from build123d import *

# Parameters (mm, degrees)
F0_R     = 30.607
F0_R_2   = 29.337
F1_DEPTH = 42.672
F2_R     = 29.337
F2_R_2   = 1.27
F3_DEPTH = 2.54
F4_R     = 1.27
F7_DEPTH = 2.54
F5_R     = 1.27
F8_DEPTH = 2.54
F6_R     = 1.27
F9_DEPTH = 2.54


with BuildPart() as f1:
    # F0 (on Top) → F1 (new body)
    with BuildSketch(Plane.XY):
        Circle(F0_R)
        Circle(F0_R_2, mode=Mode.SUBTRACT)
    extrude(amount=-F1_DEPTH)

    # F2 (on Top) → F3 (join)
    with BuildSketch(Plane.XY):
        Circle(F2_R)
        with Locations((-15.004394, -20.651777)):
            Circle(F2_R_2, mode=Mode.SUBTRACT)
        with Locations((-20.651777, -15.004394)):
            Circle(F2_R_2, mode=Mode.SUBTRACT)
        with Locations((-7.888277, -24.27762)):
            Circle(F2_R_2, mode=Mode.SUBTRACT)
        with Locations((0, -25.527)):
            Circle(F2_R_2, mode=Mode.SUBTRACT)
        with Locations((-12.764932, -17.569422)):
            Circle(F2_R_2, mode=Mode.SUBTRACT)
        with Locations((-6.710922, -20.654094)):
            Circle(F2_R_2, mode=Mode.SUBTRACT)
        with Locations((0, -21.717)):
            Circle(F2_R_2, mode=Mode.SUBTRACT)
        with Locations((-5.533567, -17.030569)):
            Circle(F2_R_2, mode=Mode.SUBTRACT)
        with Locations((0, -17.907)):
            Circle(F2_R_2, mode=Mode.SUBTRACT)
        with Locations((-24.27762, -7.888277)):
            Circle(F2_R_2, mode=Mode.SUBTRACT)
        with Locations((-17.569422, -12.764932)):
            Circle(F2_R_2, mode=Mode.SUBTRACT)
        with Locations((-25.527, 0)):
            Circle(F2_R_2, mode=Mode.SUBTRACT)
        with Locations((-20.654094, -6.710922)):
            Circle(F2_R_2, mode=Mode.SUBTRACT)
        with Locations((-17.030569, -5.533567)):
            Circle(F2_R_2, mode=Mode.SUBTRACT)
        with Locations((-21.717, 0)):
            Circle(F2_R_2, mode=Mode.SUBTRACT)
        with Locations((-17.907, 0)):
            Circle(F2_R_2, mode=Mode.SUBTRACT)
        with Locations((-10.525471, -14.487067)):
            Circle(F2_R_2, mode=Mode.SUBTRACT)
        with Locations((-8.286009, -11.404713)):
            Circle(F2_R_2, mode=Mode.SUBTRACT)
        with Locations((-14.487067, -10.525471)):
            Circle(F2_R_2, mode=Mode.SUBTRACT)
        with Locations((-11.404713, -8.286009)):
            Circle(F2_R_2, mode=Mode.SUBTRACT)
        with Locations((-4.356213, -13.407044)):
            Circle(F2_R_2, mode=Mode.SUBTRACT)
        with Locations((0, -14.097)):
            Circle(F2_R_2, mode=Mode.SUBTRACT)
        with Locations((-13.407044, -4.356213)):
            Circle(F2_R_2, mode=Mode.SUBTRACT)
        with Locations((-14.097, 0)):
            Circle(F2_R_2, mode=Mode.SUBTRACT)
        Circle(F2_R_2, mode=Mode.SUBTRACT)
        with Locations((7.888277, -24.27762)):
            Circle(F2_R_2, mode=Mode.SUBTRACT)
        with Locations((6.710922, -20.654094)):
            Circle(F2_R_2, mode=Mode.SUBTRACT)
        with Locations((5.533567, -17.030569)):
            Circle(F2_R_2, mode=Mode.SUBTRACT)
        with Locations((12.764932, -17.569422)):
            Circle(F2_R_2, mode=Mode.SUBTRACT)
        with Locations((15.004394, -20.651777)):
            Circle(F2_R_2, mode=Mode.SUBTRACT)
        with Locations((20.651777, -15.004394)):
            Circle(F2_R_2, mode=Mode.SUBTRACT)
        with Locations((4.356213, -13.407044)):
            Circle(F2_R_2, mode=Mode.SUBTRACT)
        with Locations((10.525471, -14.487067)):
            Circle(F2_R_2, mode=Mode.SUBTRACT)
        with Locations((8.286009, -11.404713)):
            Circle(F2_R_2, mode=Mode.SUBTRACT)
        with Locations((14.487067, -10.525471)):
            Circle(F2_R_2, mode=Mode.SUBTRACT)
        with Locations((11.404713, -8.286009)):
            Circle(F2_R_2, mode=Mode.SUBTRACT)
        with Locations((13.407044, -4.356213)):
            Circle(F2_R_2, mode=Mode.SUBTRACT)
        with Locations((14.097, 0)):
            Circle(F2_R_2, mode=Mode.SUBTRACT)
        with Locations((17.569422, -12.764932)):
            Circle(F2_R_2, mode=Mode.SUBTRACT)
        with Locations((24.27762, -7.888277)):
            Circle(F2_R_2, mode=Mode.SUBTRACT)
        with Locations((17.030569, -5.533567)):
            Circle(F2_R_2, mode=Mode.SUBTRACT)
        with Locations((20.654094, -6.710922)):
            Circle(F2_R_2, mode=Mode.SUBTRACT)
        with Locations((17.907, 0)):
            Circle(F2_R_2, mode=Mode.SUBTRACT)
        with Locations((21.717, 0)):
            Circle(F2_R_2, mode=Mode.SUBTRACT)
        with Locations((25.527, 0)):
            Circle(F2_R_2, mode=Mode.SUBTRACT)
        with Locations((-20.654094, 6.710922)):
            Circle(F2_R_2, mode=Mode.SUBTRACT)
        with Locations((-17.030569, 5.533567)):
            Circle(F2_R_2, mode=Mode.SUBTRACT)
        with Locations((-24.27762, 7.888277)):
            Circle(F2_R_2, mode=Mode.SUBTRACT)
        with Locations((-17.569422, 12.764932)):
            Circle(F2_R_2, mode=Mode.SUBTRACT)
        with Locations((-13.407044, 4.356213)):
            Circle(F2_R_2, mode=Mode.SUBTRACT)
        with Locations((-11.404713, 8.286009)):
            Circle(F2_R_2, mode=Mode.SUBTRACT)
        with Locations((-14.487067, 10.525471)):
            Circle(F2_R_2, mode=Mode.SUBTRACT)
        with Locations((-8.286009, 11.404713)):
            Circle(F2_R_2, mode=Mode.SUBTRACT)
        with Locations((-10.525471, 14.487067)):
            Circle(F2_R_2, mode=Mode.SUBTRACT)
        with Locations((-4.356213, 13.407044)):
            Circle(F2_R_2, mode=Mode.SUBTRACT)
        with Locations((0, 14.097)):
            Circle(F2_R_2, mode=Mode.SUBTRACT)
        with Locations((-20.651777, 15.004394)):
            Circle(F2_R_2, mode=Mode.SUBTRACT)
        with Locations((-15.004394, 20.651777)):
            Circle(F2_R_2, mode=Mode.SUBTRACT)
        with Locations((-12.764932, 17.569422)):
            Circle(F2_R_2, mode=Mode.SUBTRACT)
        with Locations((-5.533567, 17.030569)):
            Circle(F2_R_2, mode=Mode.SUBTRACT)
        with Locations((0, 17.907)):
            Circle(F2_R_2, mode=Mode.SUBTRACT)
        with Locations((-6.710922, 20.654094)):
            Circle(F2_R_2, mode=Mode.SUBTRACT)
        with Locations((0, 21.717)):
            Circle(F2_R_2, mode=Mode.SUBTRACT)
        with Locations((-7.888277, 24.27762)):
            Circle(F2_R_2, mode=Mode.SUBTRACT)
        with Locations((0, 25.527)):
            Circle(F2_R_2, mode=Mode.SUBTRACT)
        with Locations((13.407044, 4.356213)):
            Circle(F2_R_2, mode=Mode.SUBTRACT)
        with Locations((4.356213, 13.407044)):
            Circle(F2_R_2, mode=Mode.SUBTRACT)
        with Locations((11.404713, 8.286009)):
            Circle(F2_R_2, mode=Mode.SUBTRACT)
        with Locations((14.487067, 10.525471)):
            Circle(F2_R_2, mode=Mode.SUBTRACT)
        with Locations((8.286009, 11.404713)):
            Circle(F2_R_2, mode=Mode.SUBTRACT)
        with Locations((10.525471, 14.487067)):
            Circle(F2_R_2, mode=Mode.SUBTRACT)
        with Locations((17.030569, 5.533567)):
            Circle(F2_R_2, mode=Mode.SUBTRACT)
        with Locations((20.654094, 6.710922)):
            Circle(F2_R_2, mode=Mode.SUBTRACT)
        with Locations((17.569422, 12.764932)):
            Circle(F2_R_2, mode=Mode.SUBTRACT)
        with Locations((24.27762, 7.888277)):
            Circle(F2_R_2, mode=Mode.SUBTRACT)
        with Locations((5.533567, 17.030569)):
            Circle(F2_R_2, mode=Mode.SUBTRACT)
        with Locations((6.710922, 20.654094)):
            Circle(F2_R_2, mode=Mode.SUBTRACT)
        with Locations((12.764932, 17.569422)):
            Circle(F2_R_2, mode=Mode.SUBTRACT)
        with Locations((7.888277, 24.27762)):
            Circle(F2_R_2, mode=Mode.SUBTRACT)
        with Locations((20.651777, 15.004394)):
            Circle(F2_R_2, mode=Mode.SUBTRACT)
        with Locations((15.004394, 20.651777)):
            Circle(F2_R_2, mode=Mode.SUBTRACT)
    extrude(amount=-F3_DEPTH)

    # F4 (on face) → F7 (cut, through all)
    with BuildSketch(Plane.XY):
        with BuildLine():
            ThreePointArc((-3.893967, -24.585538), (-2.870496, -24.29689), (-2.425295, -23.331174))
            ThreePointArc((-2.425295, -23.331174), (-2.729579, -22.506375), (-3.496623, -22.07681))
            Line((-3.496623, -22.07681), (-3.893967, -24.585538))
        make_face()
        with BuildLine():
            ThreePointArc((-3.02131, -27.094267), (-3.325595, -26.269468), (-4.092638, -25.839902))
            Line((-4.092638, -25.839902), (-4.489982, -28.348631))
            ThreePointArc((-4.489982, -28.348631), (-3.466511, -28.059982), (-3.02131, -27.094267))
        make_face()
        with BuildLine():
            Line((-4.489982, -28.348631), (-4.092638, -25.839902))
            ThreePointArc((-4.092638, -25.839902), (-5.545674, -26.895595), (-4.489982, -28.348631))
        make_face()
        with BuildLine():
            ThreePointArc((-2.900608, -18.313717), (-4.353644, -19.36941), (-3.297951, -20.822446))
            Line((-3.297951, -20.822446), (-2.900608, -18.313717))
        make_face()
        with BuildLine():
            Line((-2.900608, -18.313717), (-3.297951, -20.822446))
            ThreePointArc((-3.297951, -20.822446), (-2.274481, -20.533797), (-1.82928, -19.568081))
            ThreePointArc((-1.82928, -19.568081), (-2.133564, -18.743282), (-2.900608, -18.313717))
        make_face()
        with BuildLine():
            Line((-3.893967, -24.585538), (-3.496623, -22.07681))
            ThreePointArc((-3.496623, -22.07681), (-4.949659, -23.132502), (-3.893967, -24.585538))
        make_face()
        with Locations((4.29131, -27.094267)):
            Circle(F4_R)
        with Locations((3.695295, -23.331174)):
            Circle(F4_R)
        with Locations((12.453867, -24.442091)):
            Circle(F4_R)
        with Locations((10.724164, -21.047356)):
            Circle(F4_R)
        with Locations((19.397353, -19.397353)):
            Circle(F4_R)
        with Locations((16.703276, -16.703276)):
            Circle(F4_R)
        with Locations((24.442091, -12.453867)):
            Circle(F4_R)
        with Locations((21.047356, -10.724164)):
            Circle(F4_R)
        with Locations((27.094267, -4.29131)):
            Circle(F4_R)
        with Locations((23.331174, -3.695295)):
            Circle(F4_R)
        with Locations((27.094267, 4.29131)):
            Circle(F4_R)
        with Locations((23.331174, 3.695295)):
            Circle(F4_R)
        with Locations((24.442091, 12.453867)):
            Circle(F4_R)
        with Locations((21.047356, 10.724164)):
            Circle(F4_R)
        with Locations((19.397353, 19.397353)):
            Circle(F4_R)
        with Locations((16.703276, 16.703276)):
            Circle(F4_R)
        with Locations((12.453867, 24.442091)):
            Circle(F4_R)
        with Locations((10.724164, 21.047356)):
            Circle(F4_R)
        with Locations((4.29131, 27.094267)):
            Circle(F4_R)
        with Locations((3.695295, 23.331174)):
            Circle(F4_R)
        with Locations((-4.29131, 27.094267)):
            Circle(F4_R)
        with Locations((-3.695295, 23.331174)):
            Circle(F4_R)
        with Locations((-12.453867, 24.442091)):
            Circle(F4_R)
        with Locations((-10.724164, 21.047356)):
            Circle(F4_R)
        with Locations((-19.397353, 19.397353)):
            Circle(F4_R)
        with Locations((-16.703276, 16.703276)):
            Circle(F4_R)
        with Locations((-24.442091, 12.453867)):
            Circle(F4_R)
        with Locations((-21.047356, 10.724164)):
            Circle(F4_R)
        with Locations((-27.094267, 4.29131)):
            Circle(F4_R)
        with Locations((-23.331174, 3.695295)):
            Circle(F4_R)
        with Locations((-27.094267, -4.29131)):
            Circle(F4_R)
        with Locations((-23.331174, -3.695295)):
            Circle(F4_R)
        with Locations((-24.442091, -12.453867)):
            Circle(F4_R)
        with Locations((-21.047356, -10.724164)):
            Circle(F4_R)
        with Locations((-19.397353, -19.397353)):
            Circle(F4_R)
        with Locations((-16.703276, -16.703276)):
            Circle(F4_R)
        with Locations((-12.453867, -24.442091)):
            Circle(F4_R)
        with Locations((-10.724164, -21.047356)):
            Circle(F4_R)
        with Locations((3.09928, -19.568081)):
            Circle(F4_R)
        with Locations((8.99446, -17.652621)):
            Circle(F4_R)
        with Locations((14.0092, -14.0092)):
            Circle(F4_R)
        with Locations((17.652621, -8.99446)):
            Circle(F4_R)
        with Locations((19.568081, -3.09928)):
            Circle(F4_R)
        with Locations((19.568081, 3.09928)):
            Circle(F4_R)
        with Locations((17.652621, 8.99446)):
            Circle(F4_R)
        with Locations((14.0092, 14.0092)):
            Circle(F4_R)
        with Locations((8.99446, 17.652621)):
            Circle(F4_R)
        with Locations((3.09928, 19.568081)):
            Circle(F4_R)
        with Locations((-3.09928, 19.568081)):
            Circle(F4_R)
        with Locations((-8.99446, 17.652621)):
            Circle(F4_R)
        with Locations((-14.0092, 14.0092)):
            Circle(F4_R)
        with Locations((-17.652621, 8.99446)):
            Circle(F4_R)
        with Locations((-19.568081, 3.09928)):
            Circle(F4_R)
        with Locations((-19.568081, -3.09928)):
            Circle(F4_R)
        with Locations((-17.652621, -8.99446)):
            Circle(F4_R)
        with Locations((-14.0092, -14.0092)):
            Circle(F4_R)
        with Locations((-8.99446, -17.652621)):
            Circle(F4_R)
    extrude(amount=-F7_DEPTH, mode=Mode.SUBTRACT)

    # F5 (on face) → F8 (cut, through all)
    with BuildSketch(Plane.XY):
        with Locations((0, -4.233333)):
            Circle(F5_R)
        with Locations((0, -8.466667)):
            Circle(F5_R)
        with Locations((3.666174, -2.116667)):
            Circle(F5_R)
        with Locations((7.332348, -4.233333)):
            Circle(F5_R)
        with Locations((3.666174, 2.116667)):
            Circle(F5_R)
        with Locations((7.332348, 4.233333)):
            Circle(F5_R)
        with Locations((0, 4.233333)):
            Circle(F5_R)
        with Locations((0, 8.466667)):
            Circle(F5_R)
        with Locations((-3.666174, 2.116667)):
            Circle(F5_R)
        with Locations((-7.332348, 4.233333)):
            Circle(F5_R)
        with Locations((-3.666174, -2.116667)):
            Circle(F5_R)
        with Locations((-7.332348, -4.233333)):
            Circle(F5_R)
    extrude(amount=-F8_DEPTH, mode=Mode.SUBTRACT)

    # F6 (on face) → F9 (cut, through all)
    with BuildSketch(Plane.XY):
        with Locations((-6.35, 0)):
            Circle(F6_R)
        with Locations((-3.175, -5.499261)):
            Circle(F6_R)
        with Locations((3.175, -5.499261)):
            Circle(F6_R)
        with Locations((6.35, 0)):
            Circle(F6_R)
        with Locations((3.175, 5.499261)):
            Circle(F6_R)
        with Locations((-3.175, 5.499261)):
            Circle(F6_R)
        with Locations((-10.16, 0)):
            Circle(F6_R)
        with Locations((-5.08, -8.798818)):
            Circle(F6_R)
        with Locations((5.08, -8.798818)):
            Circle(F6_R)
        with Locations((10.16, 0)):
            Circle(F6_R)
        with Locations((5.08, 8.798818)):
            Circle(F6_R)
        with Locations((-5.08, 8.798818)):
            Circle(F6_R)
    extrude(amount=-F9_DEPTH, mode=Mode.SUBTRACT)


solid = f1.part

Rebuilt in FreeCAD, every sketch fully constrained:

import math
import FreeCAD as App
import Part
import Sketcher

V = App.Vector
Q = App.Units.Quantity

doc = App.newDocument("Part")
params = doc.addObject("Spreadsheet::Sheet", "Params")
for row, (alias, value) in enumerate([
    ("sketch1_diameter", "2.41 in"),
    ("sketch1_diameter2", "2.31 in"),
    ("pad1_length", "1.68 in"),
    ("sketch2_diameter", "0.1 in"),
    ("sketch2_diameter2", "2.31 in"),
    ("pad2_length", "0.1 in"),
    ("sketch3_diameter", "0.1 in"),
    ("sketch4_diameter", "0.1 in"),
    ("sketch5_diameter", "0.1 in"),
], start=1):
    params.set(f"A{row}", alias)
    params.set(f"B{row}", "=" + value)
    params.setAlias(f"B{row}", alias)

body = doc.addObject("PartDesign::Body", "Body")

# Sketch on XY plane
sketch1 = body.newObject("Sketcher::SketchObject", "Sketch")
sketch1.AttachmentSupport = (doc.getObject("XY_Plane"), [""])
sketch1.MapMode = "FlatFace"
sketch1.addGeometry([
    Part.Circle(V(0, 0, 0), V(0, 0, 1), 31),
    Part.Circle(V(0, 0, 0), V(0, 0, 1), 29),
], False)
sketch1.addConstraint([
    Sketcher.Constraint("Coincident", 0, 3, -1, 1),
    Sketcher.Constraint("Coincident", 1, 3, -1, 1),
    Sketcher.Constraint("Diameter", 0, Q("2.41 in")),
    Sketcher.Constraint("Diameter", 1, Q("2.31 in")),
])
sketch1.setExpression("Constraints[2]", "Params.sketch1_diameter")
sketch1.setExpression("Constraints[3]", "Params.sketch1_diameter2")
pad1 = body.newObject("PartDesign::Pad", "Pad")
pad1.Profile = sketch1
pad1.setExpression("Length", "Params.pad1_length")
pad1.Reversed = True

# Sketch on XY plane
sketch2 = body.newObject("Sketcher::SketchObject", "Sketch001")
sketch2.AttachmentSupport = (doc.getObject("XY_Plane"), [""])
sketch2.MapMode = "FlatFace"
sketch2.addGeometry([
    Part.Circle(V(0, 0, 0), V(0, 0, 1), 29.3),  # 0
    Part.Circle(V(-15, -20.7, 0), V(0, 0, 1), 1.3),  # 1
    Part.Circle(V(-20.7, -15, 0), V(0, 0, 1), 1.3),  # 2
    Part.Circle(V(-7.9, -24.3, 0), V(0, 0, 1), 1.3),  # 3
    Part.Circle(V(-6.7, -20.7, 0), V(0, 0, 1), 1.3),  # 4
    Part.Circle(V(-12.8, -17.6, 0), V(0, 0, 1), 1.3),  # 5
    Part.Circle(V(-10.5, -14.5, 0), V(0, 0, 1), 1.3),  # 6
    Part.Circle(V(-5.5, -17, 0), V(0, 0, 1), 1.3),  # 7
    Part.Circle(V(-4.4, -13.4, 0), V(0, 0, 1), 1.3),  # 8
    Part.Circle(V(-24.3, -7.9, 0), V(0, 0, 1), 1.3),  # 9
    Part.Circle(V(-20.7, -6.7, 0), V(0, 0, 1), 1.3),  # 10
    Part.Circle(V(-17.6, -12.8, 0), V(0, 0, 1), 1.3),  # 11
    Part.Circle(V(-14.5, -10.5, 0), V(0, 0, 1), 1.3),  # 12
    Part.Circle(V(-17, -5.5, 0), V(0, 0, 1), 1.3),  # 13
    Part.Circle(V(-13.4, -4.4, 0), V(0, 0, 1), 1.3),  # 14
    Part.Circle(V(-8.3, -11.4, 0), V(0, 0, 1), 1.3),  # 15
    Part.Circle(V(-11.4, -8.3, 0), V(0, 0, 1), 1.3),  # 16
    Part.Circle(V(0, -25.5, 0), V(0, 0, 1), 1.3),  # 17
    Part.Circle(V(0, -21.7, 0), V(0, 0, 1), 1.3),  # 18
    Part.Circle(V(7.9, -24.3, 0), V(0, 0, 1), 1.3),  # 19
    Part.Circle(V(6.7, -20.7, 0), V(0, 0, 1), 1.3),  # 20
    Part.Circle(V(0, -17.9, 0), V(0, 0, 1), 1.3),  # 21
    Part.Circle(V(5.5, -17, 0), V(0, 0, 1), 1.3),  # 22
    Part.Circle(V(0, -14.1, 0), V(0, 0, 1), 1.3),  # 23
    Part.Circle(V(4.4, -13.4, 0), V(0, 0, 1), 1.3),  # 24
    Part.Circle(V(12.8, -17.6, 0), V(0, 0, 1), 1.3),  # 25
    Part.Circle(V(10.5, -14.5, 0), V(0, 0, 1), 1.3),  # 26
    Part.Circle(V(15, -20.7, 0), V(0, 0, 1), 1.3),  # 27
    Part.Circle(V(20.7, -15, 0), V(0, 0, 1), 1.3),  # 28
    Part.Circle(V(8.3, -11.4, 0), V(0, 0, 1), 1.3),  # 29
    Part.Circle(V(11.4, -8.3, 0), V(0, 0, 1), 1.3),  # 30
    Part.Circle(V(14.5, -10.5, 0), V(0, 0, 1), 1.3),  # 31
    Part.Circle(V(17.6, -12.8, 0), V(0, 0, 1), 1.3),  # 32
    Part.Circle(V(20.7, -6.7, 0), V(0, 0, 1), 1.3),  # 33
    Part.Circle(V(24.3, -7.9, 0), V(0, 0, 1), 1.3),  # 34
    Part.Circle(V(13.4, -4.4, 0), V(0, 0, 1), 1.3),  # 35
    Part.Circle(V(17, -5.5, 0), V(0, 0, 1), 1.3),  # 36
    Part.Circle(V(-25.5, 0, 0), V(0, 0, 1), 1.3),  # 37
    Part.Circle(V(-21.7, 0, 0), V(0, 0, 1), 1.3),  # 38
    Part.Circle(V(-17.9, 0, 0), V(0, 0, 1), 1.3),  # 39
    Part.Circle(V(-14.1, 0, 0), V(0, 0, 1), 1.3),  # 40
    Part.Circle(V(-17, 5.5, 0), V(0, 0, 1), 1.3),  # 41
    Part.Circle(V(-13.4, 4.4, 0), V(0, 0, 1), 1.3),  # 42
    Part.Circle(V(-24.3, 7.9, 0), V(0, 0, 1), 1.3),  # 43
    Part.Circle(V(-20.7, 6.7, 0), V(0, 0, 1), 1.3),  # 44
    Part.Circle(V(-17.6, 12.8, 0), V(0, 0, 1), 1.3),  # 45
    Part.Circle(V(-14.5, 10.5, 0), V(0, 0, 1), 1.3),  # 46
    Part.Circle(V(-11.4, 8.3, 0), V(0, 0, 1), 1.3),  # 47
    Part.Circle(V(-8.3, 11.4, 0), V(0, 0, 1), 1.3),  # 48
    Part.Circle(V(-20.7, 15, 0), V(0, 0, 1), 1.3),  # 49
    Part.Circle(V(-15, 20.7, 0), V(0, 0, 1), 1.3),  # 50
    Part.Circle(V(-10.5, 14.5, 0), V(0, 0, 1), 1.3),  # 51
    Part.Circle(V(-12.8, 17.6, 0), V(0, 0, 1), 1.3),  # 52
    Part.Circle(V(-4.4, 13.4, 0), V(0, 0, 1), 1.3),  # 53
    Part.Circle(V(-5.5, 17, 0), V(0, 0, 1), 1.3),  # 54
    Part.Circle(V(-6.7, 20.7, 0), V(0, 0, 1), 1.3),  # 55
    Part.Circle(V(-7.9, 24.3, 0), V(0, 0, 1), 1.3),  # 56
    Part.Circle(V(0, 0, 0), V(0, 0, 1), 1.3),  # 57
    Part.Circle(V(11.4, 8.3, 0), V(0, 0, 1), 1.3),  # 58
    Part.Circle(V(8.3, 11.4, 0), V(0, 0, 1), 1.3),  # 59
    Part.Circle(V(14.1, 0, 0), V(0, 0, 1), 1.3),  # 60
    Part.Circle(V(17.9, 0, 0), V(0, 0, 1), 1.3),  # 61
    Part.Circle(V(13.4, 4.4, 0), V(0, 0, 1), 1.3),  # 62
    Part.Circle(V(17, 5.5, 0), V(0, 0, 1), 1.3),  # 63
    Part.Circle(V(21.7, 0, 0), V(0, 0, 1), 1.3),  # 64
    Part.Circle(V(25.5, 0, 0), V(0, 0, 1), 1.3),  # 65
    Part.Circle(V(14.5, 10.5, 0), V(0, 0, 1), 1.3),  # 66
    Part.Circle(V(17.6, 12.8, 0), V(0, 0, 1), 1.3),  # 67
    Part.Circle(V(20.7, 6.7, 0), V(0, 0, 1), 1.3),  # 68
    Part.Circle(V(24.3, 7.9, 0), V(0, 0, 1), 1.3),  # 69
    Part.Circle(V(0, 14.1, 0), V(0, 0, 1), 1.3),  # 70
    Part.Circle(V(4.4, 13.4, 0), V(0, 0, 1), 1.3),  # 71
    Part.Circle(V(0, 17.9, 0), V(0, 0, 1), 1.3),  # 72
    Part.Circle(V(5.5, 17, 0), V(0, 0, 1), 1.3),  # 73
    Part.Circle(V(10.5, 14.5, 0), V(0, 0, 1), 1.3),  # 74
    Part.Circle(V(12.8, 17.6, 0), V(0, 0, 1), 1.3),  # 75
    Part.Circle(V(0, 21.7, 0), V(0, 0, 1), 1.3),  # 76
    Part.Circle(V(0, 25.5, 0), V(0, 0, 1), 1.3),  # 77
    Part.Circle(V(6.7, 20.7, 0), V(0, 0, 1), 1.3),  # 78
    Part.Circle(V(7.9, 24.3, 0), V(0, 0, 1), 1.3),  # 79
    Part.Circle(V(20.7, 15, 0), V(0, 0, 1), 1.3),  # 80
    Part.Circle(V(15, 20.7, 0), V(0, 0, 1), 1.3),  # 81
], False)
sketch2.addConstraint([
    Sketcher.Constraint("Coincident", 0, 3, -1, 1),
    Sketcher.Constraint("Coincident", 57, 3, -1, 1),
    Sketcher.Constraint("Equal", 1, 2),
    Sketcher.Constraint("Equal", 2, 3),
    Sketcher.Constraint("Equal", 3, 4),
    Sketcher.Constraint("Equal", 4, 5),
    Sketcher.Constraint("Equal", 5, 6),
    Sketcher.Constraint("Equal", 6, 7),
    Sketcher.Constraint("Equal", 7, 8),
    Sketcher.Constraint("Equal", 8, 9),
    Sketcher.Constraint("Equal", 9, 10),
    Sketcher.Constraint("Equal", 10, 11),
    Sketcher.Constraint("Equal", 11, 12),
    Sketcher.Constraint("Equal", 12, 13),
    Sketcher.Constraint("Equal", 13, 14),
    Sketcher.Constraint("Equal", 14, 15),
    Sketcher.Constraint("Equal", 15, 16),
    Sketcher.Constraint("Equal", 16, 17),
    Sketcher.Constraint("Equal", 17, 18),
    Sketcher.Constraint("Equal", 18, 19),
    Sketcher.Constraint("Equal", 19, 20),
    Sketcher.Constraint("Equal", 20, 21),
    Sketcher.Constraint("Equal", 21, 22),
    Sketcher.Constraint("Equal", 22, 23),
    Sketcher.Constraint("Equal", 23, 24),
    Sketcher.Constraint("Equal", 24, 25),
    Sketcher.Constraint("Equal", 25, 26),
    Sketcher.Constraint("Equal", 26, 27),
    Sketcher.Constraint("Equal", 27, 28),
    Sketcher.Constraint("Equal", 28, 29),
    Sketcher.Constraint("Equal", 29, 30),
    Sketcher.Constraint("Equal", 30, 31),
    Sketcher.Constraint("Equal", 31, 32),
    Sketcher.Constraint("Equal", 32, 33),
    Sketcher.Constraint("Equal", 33, 34),
    Sketcher.Constraint("Equal", 34, 35),
    Sketcher.Constraint("Equal", 35, 36),
    Sketcher.Constraint("Equal", 36, 37),
    Sketcher.Constraint("Equal", 37, 38),
    Sketcher.Constraint("Equal", 38, 39),
    Sketcher.Constraint("Equal", 39, 40),
    Sketcher.Constraint("Equal", 40, 41),
    Sketcher.Constraint("Equal", 41, 42),
    Sketcher.Constraint("Equal", 42, 43),
    Sketcher.Constraint("Equal", 43, 44),
    Sketcher.Constraint("Equal", 44, 45),
    Sketcher.Constraint("Equal", 45, 46),
    Sketcher.Constraint("Equal", 46, 47),
    Sketcher.Constraint("Equal", 47, 48),
    Sketcher.Constraint("Equal", 48, 49),
    Sketcher.Constraint("Equal", 49, 50),
    Sketcher.Constraint("Equal", 50, 51),
    Sketcher.Constraint("Equal", 51, 52),
    Sketcher.Constraint("Equal", 52, 53),
    Sketcher.Constraint("Equal", 53, 54),
    Sketcher.Constraint("Equal", 54, 55),
    Sketcher.Constraint("Equal", 55, 56),
    Sketcher.Constraint("Equal", 56, 57),
    Sketcher.Constraint("Equal", 57, 58),
    Sketcher.Constraint("Equal", 58, 59),
    Sketcher.Constraint("Equal", 59, 60),
    Sketcher.Constraint("Equal", 60, 61),
    Sketcher.Constraint("Equal", 61, 62),
    Sketcher.Constraint("Equal", 62, 63),
    Sketcher.Constraint("Equal", 63, 64),
    Sketcher.Constraint("Equal", 64, 65),
    Sketcher.Constraint("Equal", 65, 66),
    Sketcher.Constraint("Equal", 66, 67),
    Sketcher.Constraint("Equal", 67, 68),
    Sketcher.Constraint("Equal", 68, 69),
    Sketcher.Constraint("Equal", 69, 70),
    Sketcher.Constraint("Equal", 70, 71),
    Sketcher.Constraint("Equal", 71, 72),
    Sketcher.Constraint("Equal", 72, 73),
    Sketcher.Constraint("Equal", 73, 74),
    Sketcher.Constraint("Equal", 74, 75),
    Sketcher.Constraint("Equal", 75, 76),
    Sketcher.Constraint("Equal", 76, 77),
    Sketcher.Constraint("Equal", 77, 78),
    Sketcher.Constraint("Equal", 78, 79),
    Sketcher.Constraint("Equal", 79, 80),
    Sketcher.Constraint("Equal", 80, 81),
    Sketcher.Constraint("Symmetric", 36, 3, 41, 3, -1, 1),
    Sketcher.Constraint("Symmetric", 35, 3, 42, 3, -1, 1),
    Sketcher.Constraint("Symmetric", 34, 3, 43, 3, -1, 1),
    Sketcher.Constraint("Symmetric", 33, 3, 44, 3, -1, 1),
    Sketcher.Constraint("Symmetric", 32, 3, 45, 3, -1, 1),
    Sketcher.Constraint("Symmetric", 31, 3, 46, 3, -1, 1),
    Sketcher.Constraint("Symmetric", 30, 3, 47, 3, -1, 1),
    Sketcher.Constraint("Symmetric", 29, 3, 48, 3, -1, 1),
    Sketcher.Constraint("Symmetric", 28, 3, 49, 3, -1, 1),
    Sketcher.Constraint("Symmetric", 27, 3, 50, 3, -1, 1),
    Sketcher.Constraint("Symmetric", 26, 3, 51, 3, -1, 1),
    Sketcher.Constraint("Symmetric", 25, 3, 52, 3, -1, 1),
    Sketcher.Constraint("Symmetric", 24, 3, 53, 3, -1, 1),
    Sketcher.Constraint("Symmetric", 22, 3, 54, 3, -1, 1),
    Sketcher.Constraint("Symmetric", 20, 3, 55, 3, -1, 1),
    Sketcher.Constraint("Symmetric", 19, 3, 56, 3, -1, 1),
    Sketcher.Constraint("Symmetric", 16, 3, 58, 3, -1, 1),
    Sketcher.Constraint("Symmetric", 15, 3, 59, 3, -1, 1),
    Sketcher.Constraint("Symmetric", 40, 3, 60, 3, -1, 1),
    Sketcher.Constraint("Symmetric", 39, 3, 61, 3, -1, 1),
    Sketcher.Constraint("Symmetric", 14, 3, 62, 3, -1, 1),
    Sketcher.Constraint("Symmetric", 13, 3, 63, 3, -1, 1),
    Sketcher.Constraint("Symmetric", 38, 3, 64, 3, -1, 1),
    Sketcher.Constraint("Symmetric", 37, 3, 65, 3, -1, 1),
    Sketcher.Constraint("Symmetric", 12, 3, 66, 3, -1, 1),
    Sketcher.Constraint("Symmetric", 11, 3, 67, 3, -1, 1),
    Sketcher.Constraint("Symmetric", 10, 3, 68, 3, -1, 1),
    Sketcher.Constraint("Symmetric", 9, 3, 69, 3, -1, 1),
    Sketcher.Constraint("Symmetric", 23, 3, 70, 3, -1, 1),
    Sketcher.Constraint("Symmetric", 8, 3, 71, 3, -1, 1),
    Sketcher.Constraint("Symmetric", 21, 3, 72, 3, -1, 1),
    Sketcher.Constraint("Symmetric", 7, 3, 73, 3, -1, 1),
    Sketcher.Constraint("Symmetric", 6, 3, 74, 3, -1, 1),
    Sketcher.Constraint("Symmetric", 5, 3, 75, 3, -1, 1),
    Sketcher.Constraint("Symmetric", 18, 3, 76, 3, -1, 1),
    Sketcher.Constraint("Symmetric", 17, 3, 77, 3, -1, 1),
    Sketcher.Constraint("Symmetric", 4, 3, 78, 3, -1, 1),
    Sketcher.Constraint("Symmetric", 3, 3, 79, 3, -1, 1),
    Sketcher.Constraint("Symmetric", 2, 3, 80, 3, -1, 1),
    Sketcher.Constraint("Symmetric", 1, 3, 81, 3, -1, 1),
    Sketcher.Constraint("Symmetric", 3, 3, 19, 3, -2),
    Sketcher.Constraint("Symmetric", 4, 3, 20, 3, -2),
    Sketcher.Constraint("Symmetric", 7, 3, 22, 3, -2),
    Sketcher.Constraint("Symmetric", 8, 3, 24, 3, -2),
    Sketcher.Constraint("Symmetric", 5, 3, 25, 3, -2),
    Sketcher.Constraint("Symmetric", 6, 3, 26, 3, -2),
    Sketcher.Constraint("Symmetric", 1, 3, 27, 3, -2),
    Sketcher.Constraint("Symmetric", 2, 3, 28, 3, -2),
    Sketcher.Constraint("Symmetric", 15, 3, 29, 3, -2),
    Sketcher.Constraint("Symmetric", 16, 3, 30, 3, -2),
    Sketcher.Constraint("Symmetric", 12, 3, 31, 3, -2),
    Sketcher.Constraint("Symmetric", 11, 3, 32, 3, -2),
    Sketcher.Constraint("Symmetric", 10, 3, 33, 3, -2),
    Sketcher.Constraint("Symmetric", 9, 3, 34, 3, -2),
    Sketcher.Constraint("Symmetric", 14, 3, 35, 3, -2),
    Sketcher.Constraint("Symmetric", 13, 3, 36, 3, -2),
    Sketcher.Constraint("PointOnObject", 17, 3, -2),
    Sketcher.Constraint("PointOnObject", 18, 3, -2),
    Sketcher.Constraint("PointOnObject", 21, 3, -2),
    Sketcher.Constraint("PointOnObject", 23, 3, -2),
    Sketcher.Constraint("PointOnObject", 37, 3, -1),
    Sketcher.Constraint("PointOnObject", 38, 3, -1),
    Sketcher.Constraint("PointOnObject", 39, 3, -1),
    Sketcher.Constraint("PointOnObject", 40, 3, -1),
    Sketcher.Constraint("Diameter", 1, Q("0.1 in")),
    Sketcher.Constraint("Diameter", 0, Q("2.31 in")),
    Sketcher.Constraint("DistanceY", 17, 3, -1, 1, Q("1.005 in")),
    Sketcher.Constraint("DistanceY", 18, 3, -1, 1, Q("0.855 in")),
    Sketcher.Constraint("DistanceY", 21, 3, -1, 1, Q("0.705 in")),
    Sketcher.Constraint("DistanceY", 23, 3, -1, 1, Q("0.555 in")),
    Sketcher.Constraint("DistanceX", 37, 3, -1, 1, Q("1.005 in")),
    Sketcher.Constraint("DistanceX", 38, 3, -1, 1, Q("0.855 in")),
    Sketcher.Constraint("DistanceX", 39, 3, -1, 1, Q("0.705 in")),
    Sketcher.Constraint("DistanceX", 40, 3, -1, 1, Q("0.555 in")),
    Sketcher.Constraint("DistanceY", 3, 3, -1, 1, 24.27762),
    Sketcher.Constraint("DistanceY", 5, 3, -1, 1, 17.569422),
    Sketcher.Constraint("DistanceX", 6, 3, -1, 1, 10.525471),
    Sketcher.Constraint("DistanceY", 7, 3, -1, 1, 17.030569),
    Sketcher.Constraint("DistanceX", 9, 3, -1, 1, 24.27762),
    Sketcher.Constraint("DistanceX", 11, 3, -1, 1, 17.569422),
    Sketcher.Constraint("DistanceY", 12, 3, -1, 1, 10.525471),
    Sketcher.Constraint("DistanceX", 13, 3, -1, 1, 17.030569),
    Sketcher.Constraint("DistanceX", 15, 3, -1, 1, 8.286009),
    Sketcher.Constraint("DistanceY", 16, 3, -1, 1, 8.286009),
    Sketcher.Constraint("DistanceX", 1, 3, -1, 1, 15.004394),
    Sketcher.Constraint("DistanceY", 1, 3, -1, 1, 20.651777),
    Sketcher.Constraint("DistanceX", 2, 3, -1, 1, 20.651777),
    Sketcher.Constraint("DistanceY", 2, 3, -1, 1, 15.004394),
    Sketcher.Constraint("DistanceX", 3, 3, -1, 1, 7.888277),
    Sketcher.Constraint("DistanceX", 4, 3, -1, 1, 6.710922),
    Sketcher.Constraint("DistanceY", 4, 3, -1, 1, 20.654094),
    Sketcher.Constraint("DistanceX", 5, 3, -1, 1, 12.764932),
    Sketcher.Constraint("DistanceY", 6, 3, -1, 1, 14.487067),
    Sketcher.Constraint("DistanceX", 7, 3, -1, 1, 5.533567),
    Sketcher.Constraint("DistanceX", 8, 3, -1, 1, 4.356213),
    Sketcher.Constraint("DistanceY", 8, 3, -1, 1, 13.407044),
    Sketcher.Constraint("DistanceY", 9, 3, -1, 1, 7.888277),
    Sketcher.Constraint("DistanceX", 10, 3, -1, 1, 20.654094),
    Sketcher.Constraint("DistanceY", 10, 3, -1, 1, 6.710922),
    Sketcher.Constraint("DistanceY", 11, 3, -1, 1, 12.764932),
    Sketcher.Constraint("DistanceX", 12, 3, -1, 1, 14.487067),
    Sketcher.Constraint("DistanceY", 13, 3, -1, 1, 5.533567),
    Sketcher.Constraint("DistanceX", 14, 3, -1, 1, 13.407044),
    Sketcher.Constraint("DistanceY", 14, 3, -1, 1, 4.356213),
    Sketcher.Constraint("DistanceY", 15, 3, -1, 1, 11.404713),
    Sketcher.Constraint("DistanceX", 16, 3, -1, 1, 11.404713),
])
sketch2.setExpression("Constraints[146]", "Params.sketch2_diameter")
sketch2.setExpression("Constraints[147]", "Params.sketch2_diameter2")
pad2 = body.newObject("PartDesign::Pad", "Pad001")
pad2.Profile = sketch2
pad2.setExpression("Length", "Params.pad2_length")
pad2.Reversed = True

# Sketch on XY plane
sketch3 = body.newObject("Sketcher::SketchObject", "Sketch002")
sketch3.AttachmentSupport = (doc.getObject("XY_Plane"), [""])
sketch3.MapMode = "FlatFace"
sketch3.addGeometry([
    Part.ArcOfCircle(Part.Circle(V(-3.7, -23.3, 0), V(0, 0, 1), 1.3), math.radians(-99), math.radians(0)),  # 0
    Part.ArcOfCircle(Part.Circle(V(-3.7, -23.3, 0), V(0, 0, 1), 1.3), math.radians(0), math.radians(81)),  # 1
    Part.ArcOfCircle(Part.Circle(V(-3.7, -23.3, 0), V(0, 0, 1), 1.3), math.radians(81), math.radians(261)),  # 2
    Part.ArcOfCircle(Part.Circle(V(-4.3, -27.1, 0), V(0, 0, 1), 1.3), math.radians(0), math.radians(81)),  # 3
    Part.ArcOfCircle(Part.Circle(V(-4.3, -27.1, 0), V(0, 0, 1), 1.3), math.radians(81), math.radians(261)),  # 4
    Part.ArcOfCircle(Part.Circle(V(-4.3, -27.1, 0), V(0, 0, 1), 1.3), math.radians(-99), math.radians(0)),  # 5
    Part.ArcOfCircle(Part.Circle(V(-3.1, -19.6, 0), V(0, 0, 1), 1.3), math.radians(81), math.radians(261)),  # 6
    Part.ArcOfCircle(Part.Circle(V(-3.1, -19.6, 0), V(0, 0, 1), 1.3), math.radians(-99), math.radians(0)),  # 7
    Part.ArcOfCircle(Part.Circle(V(-3.1, -19.6, 0), V(0, 0, 1), 1.3), math.radians(0), math.radians(81)),  # 8
    Part.Circle(V(4.3, -27.1, 0), V(0, 0, 1), 1.3),  # 9
    Part.Circle(V(3.7, -23.3, 0), V(0, 0, 1), 1.3),  # 10
    Part.Circle(V(12.5, -24.4, 0), V(0, 0, 1), 1.3),  # 11
    Part.Circle(V(10.7, -21, 0), V(0, 0, 1), 1.3),  # 12
    Part.Circle(V(19.4, -19.4, 0), V(0, 0, 1), 1.3),  # 13
    Part.Circle(V(16.7, -16.7, 0), V(0, 0, 1), 1.3),  # 14
    Part.Circle(V(24.4, -12.5, 0), V(0, 0, 1), 1.3),  # 15
    Part.Circle(V(21, -10.7, 0), V(0, 0, 1), 1.3),  # 16
    Part.Circle(V(27.1, -4.3, 0), V(0, 0, 1), 1.3),  # 17
    Part.Circle(V(23.3, -3.7, 0), V(0, 0, 1), 1.3),  # 18
    Part.Circle(V(27.1, 4.3, 0), V(0, 0, 1), 1.3),  # 19
    Part.Circle(V(23.3, 3.7, 0), V(0, 0, 1), 1.3),  # 20
    Part.Circle(V(24.4, 12.5, 0), V(0, 0, 1), 1.3),  # 21
    Part.Circle(V(21, 10.7, 0), V(0, 0, 1), 1.3),  # 22
    Part.Circle(V(19.4, 19.4, 0), V(0, 0, 1), 1.3),  # 23
    Part.Circle(V(16.7, 16.7, 0), V(0, 0, 1), 1.3),  # 24
    Part.Circle(V(12.5, 24.4, 0), V(0, 0, 1), 1.3),  # 25
    Part.Circle(V(10.7, 21, 0), V(0, 0, 1), 1.3),  # 26
    Part.Circle(V(4.3, 27.1, 0), V(0, 0, 1), 1.3),  # 27
    Part.Circle(V(3.7, 23.3, 0), V(0, 0, 1), 1.3),  # 28
    Part.Circle(V(-4.3, 27.1, 0), V(0, 0, 1), 1.3),  # 29
    Part.Circle(V(-3.7, 23.3, 0), V(0, 0, 1), 1.3),  # 30
    Part.Circle(V(-12.5, 24.4, 0), V(0, 0, 1), 1.3),  # 31
    Part.Circle(V(-10.7, 21, 0), V(0, 0, 1), 1.3),  # 32
    Part.Circle(V(-19.4, 19.4, 0), V(0, 0, 1), 1.3),  # 33
    Part.Circle(V(-16.7, 16.7, 0), V(0, 0, 1), 1.3),  # 34
    Part.Circle(V(-24.4, 12.5, 0), V(0, 0, 1), 1.3),  # 35
    Part.Circle(V(-21, 10.7, 0), V(0, 0, 1), 1.3),  # 36
    Part.Circle(V(-27.1, 4.3, 0), V(0, 0, 1), 1.3),  # 37
    Part.Circle(V(-23.3, 3.7, 0), V(0, 0, 1), 1.3),  # 38
    Part.Circle(V(-27.1, -4.3, 0), V(0, 0, 1), 1.3),  # 39
    Part.Circle(V(-23.3, -3.7, 0), V(0, 0, 1), 1.3),  # 40
    Part.Circle(V(-24.4, -12.5, 0), V(0, 0, 1), 1.3),  # 41
    Part.Circle(V(-21, -10.7, 0), V(0, 0, 1), 1.3),  # 42
    Part.Circle(V(-19.4, -19.4, 0), V(0, 0, 1), 1.3),  # 43
    Part.Circle(V(-16.7, -16.7, 0), V(0, 0, 1), 1.3),  # 44
    Part.Circle(V(-12.5, -24.4, 0), V(0, 0, 1), 1.3),  # 45
    Part.Circle(V(-10.7, -21, 0), V(0, 0, 1), 1.3),  # 46
    Part.Circle(V(3.1, -19.6, 0), V(0, 0, 1), 1.3),  # 47
    Part.Circle(V(9, -17.7, 0), V(0, 0, 1), 1.3),  # 48
    Part.Circle(V(14, -14, 0), V(0, 0, 1), 1.3),  # 49
    Part.Circle(V(17.7, -9, 0), V(0, 0, 1), 1.3),  # 50
    Part.Circle(V(19.6, -3.1, 0), V(0, 0, 1), 1.3),  # 51
    Part.Circle(V(19.6, 3.1, 0), V(0, 0, 1), 1.3),  # 52
    Part.Circle(V(17.7, 9, 0), V(0, 0, 1), 1.3),  # 53
    Part.Circle(V(14, 14, 0), V(0, 0, 1), 1.3),  # 54
    Part.Circle(V(9, 17.7, 0), V(0, 0, 1), 1.3),  # 55
    Part.Circle(V(3.1, 19.6, 0), V(0, 0, 1), 1.3),  # 56
    Part.Circle(V(-3.1, 19.6, 0), V(0, 0, 1), 1.3),  # 57
    Part.Circle(V(-9, 17.7, 0), V(0, 0, 1), 1.3),  # 58
    Part.Circle(V(-14, 14, 0), V(0, 0, 1), 1.3),  # 59
    Part.Circle(V(-17.7, 9, 0), V(0, 0, 1), 1.3),  # 60
    Part.Circle(V(-19.6, 3.1, 0), V(0, 0, 1), 1.3),  # 61
    Part.Circle(V(-19.6, -3.1, 0), V(0, 0, 1), 1.3),  # 62
    Part.Circle(V(-17.7, -9, 0), V(0, 0, 1), 1.3),  # 63
    Part.Circle(V(-14, -14, 0), V(0, 0, 1), 1.3),  # 64
    Part.Circle(V(-9, -17.7, 0), V(0, 0, 1), 1.3),  # 65
], False)
sketch3.addConstraint([
    Sketcher.Constraint("Tangent", 0, 2, 1, 1),
    Sketcher.Constraint("Tangent", 1, 2, 2, 1),
    Sketcher.Constraint("Tangent", 2, 2, 0, 1),
    Sketcher.Constraint("Coincident", 3, 2, 4, 1),
    Sketcher.Constraint("Tangent", 4, 2, 5, 1),
    Sketcher.Constraint("Coincident", 5, 2, 3, 1),
    Sketcher.Constraint("Tangent", 6, 2, 7, 1),
    Sketcher.Constraint("Tangent", 7, 2, 8, 1),
    Sketcher.Constraint("Tangent", 8, 2, 6, 1),
    Sketcher.Constraint("Coincident", 4, 3, 3, 3),
    Sketcher.Constraint("Equal", 2, 4),
    Sketcher.Constraint("Equal", 5, 6),
    Sketcher.Constraint("Equal", 8, 9),
    Sketcher.Constraint("Equal", 9, 10),
    Sketcher.Constraint("Equal", 10, 11),
    Sketcher.Constraint("Equal", 11, 12),
    Sketcher.Constraint("Equal", 12, 13),
    Sketcher.Constraint("Equal", 13, 14),
    Sketcher.Constraint("Equal", 14, 15),
    Sketcher.Constraint("Equal", 15, 16),
    Sketcher.Constraint("Equal", 16, 17),
    Sketcher.Constraint("Equal", 17, 18),
    Sketcher.Constraint("Equal", 18, 19),
    Sketcher.Constraint("Equal", 19, 20),
    Sketcher.Constraint("Equal", 20, 21),
    Sketcher.Constraint("Equal", 21, 22),
    Sketcher.Constraint("Equal", 22, 23),
    Sketcher.Constraint("Equal", 23, 24),
    Sketcher.Constraint("Equal", 24, 25),
    Sketcher.Constraint("Equal", 25, 26),
    Sketcher.Constraint("Equal", 26, 27),
    Sketcher.Constraint("Equal", 27, 28),
    Sketcher.Constraint("Equal", 28, 29),
    Sketcher.Constraint("Equal", 29, 30),
    Sketcher.Constraint("Equal", 30, 31),
    Sketcher.Constraint("Equal", 31, 32),
    Sketcher.Constraint("Equal", 32, 33),
    Sketcher.Constraint("Equal", 33, 34),
    Sketcher.Constraint("Equal", 34, 35),
    Sketcher.Constraint("Equal", 35, 36),
    Sketcher.Constraint("Equal", 36, 37),
    Sketcher.Constraint("Equal", 37, 38),
    Sketcher.Constraint("Equal", 38, 39),
    Sketcher.Constraint("Equal", 39, 40),
    Sketcher.Constraint("Equal", 40, 41),
    Sketcher.Constraint("Equal", 41, 42),
    Sketcher.Constraint("Equal", 42, 43),
    Sketcher.Constraint("Equal", 43, 44),
    Sketcher.Constraint("Equal", 44, 45),
    Sketcher.Constraint("Equal", 45, 46),
    Sketcher.Constraint("Equal", 46, 47),
    Sketcher.Constraint("Equal", 47, 48),
    Sketcher.Constraint("Equal", 48, 49),
    Sketcher.Constraint("Equal", 49, 50),
    Sketcher.Constraint("Equal", 50, 51),
    Sketcher.Constraint("Equal", 51, 52),
    Sketcher.Constraint("Equal", 52, 53),
    Sketcher.Constraint("Equal", 53, 54),
    Sketcher.Constraint("Equal", 54, 55),
    Sketcher.Constraint("Equal", 55, 56),
    Sketcher.Constraint("Equal", 56, 57),
    Sketcher.Constraint("Equal", 57, 58),
    Sketcher.Constraint("Equal", 58, 59),
    Sketcher.Constraint("Equal", 59, 60),
    Sketcher.Constraint("Equal", 60, 61),
    Sketcher.Constraint("Equal", 61, 62),
    Sketcher.Constraint("Equal", 62, 63),
    Sketcher.Constraint("Equal", 63, 64),
    Sketcher.Constraint("Equal", 64, 65),
    Sketcher.Constraint("Symmetric", 3, 3, 27, 3, -1, 1),
    Sketcher.Constraint("Symmetric", 0, 3, 28, 3, -1, 1),
    Sketcher.Constraint("Symmetric", 9, 3, 29, 3, -1, 1),
    Sketcher.Constraint("Symmetric", 10, 3, 30, 3, -1, 1),
    Sketcher.Constraint("Symmetric", 11, 3, 31, 3, -1, 1),
    Sketcher.Constraint("Symmetric", 12, 3, 32, 3, -1, 1),
    Sketcher.Constraint("Symmetric", 13, 3, 33, 3, -1, 1),
    Sketcher.Constraint("Symmetric", 14, 3, 34, 3, -1, 1),
    Sketcher.Constraint("Symmetric", 15, 3, 35, 3, -1, 1),
    Sketcher.Constraint("Symmetric", 16, 3, 36, 3, -1, 1),
    Sketcher.Constraint("Symmetric", 17, 3, 37, 3, -1, 1),
    Sketcher.Constraint("Symmetric", 18, 3, 38, 3, -1, 1),
    Sketcher.Constraint("Symmetric", 19, 3, 39, 3, -1, 1),
    Sketcher.Constraint("Symmetric", 20, 3, 40, 3, -1, 1),
    Sketcher.Constraint("Symmetric", 21, 3, 41, 3, -1, 1),
    Sketcher.Constraint("Symmetric", 22, 3, 42, 3, -1, 1),
    Sketcher.Constraint("Symmetric", 23, 3, 43, 3, -1, 1),
    Sketcher.Constraint("Symmetric", 24, 3, 44, 3, -1, 1),
    Sketcher.Constraint("Symmetric", 25, 3, 45, 3, -1, 1),
    Sketcher.Constraint("Symmetric", 26, 3, 46, 3, -1, 1),
    Sketcher.Constraint("Symmetric", 6, 3, 56, 3, -1, 1),
    Sketcher.Constraint("Symmetric", 47, 3, 57, 3, -1, 1),
    Sketcher.Constraint("Symmetric", 48, 3, 58, 3, -1, 1),
    Sketcher.Constraint("Symmetric", 49, 3, 59, 3, -1, 1),
    Sketcher.Constraint("Symmetric", 50, 3, 60, 3, -1, 1),
    Sketcher.Constraint("Symmetric", 51, 3, 61, 3, -1, 1),
    Sketcher.Constraint("Symmetric", 52, 3, 62, 3, -1, 1),
    Sketcher.Constraint("Symmetric", 53, 3, 63, 3, -1, 1),
    Sketcher.Constraint("Symmetric", 54, 3, 64, 3, -1, 1),
    Sketcher.Constraint("Symmetric", 55, 3, 65, 3, -1, 1),
    Sketcher.Constraint("Symmetric", 3, 3, 9, 3, -2),
    Sketcher.Constraint("Symmetric", 0, 3, 10, 3, -2),
    Sketcher.Constraint("Symmetric", 25, 3, 31, 3, -2),
    Sketcher.Constraint("Symmetric", 26, 3, 32, 3, -2),
    Sketcher.Constraint("Symmetric", 23, 3, 33, 3, -2),
    Sketcher.Constraint("Symmetric", 24, 3, 34, 3, -2),
    Sketcher.Constraint("Symmetric", 21, 3, 35, 3, -2),
    Sketcher.Constraint("Symmetric", 22, 3, 36, 3, -2),
    Sketcher.Constraint("Symmetric", 19, 3, 37, 3, -2),
    Sketcher.Constraint("Symmetric", 20, 3, 38, 3, -2),
    Sketcher.Constraint("Symmetric", 6, 3, 47, 3, -2),
    Sketcher.Constraint("Symmetric", 55, 3, 58, 3, -2),
    Sketcher.Constraint("Symmetric", 54, 3, 59, 3, -2),
    Sketcher.Constraint("Symmetric", 53, 3, 60, 3, -2),
    Sketcher.Constraint("Symmetric", 52, 3, 61, 3, -2),
    Sketcher.Constraint("Horizontal", 10, 3, 0, 2),
    Sketcher.Constraint("Horizontal", 9, 3, 5, 2),
    Sketcher.Constraint("Horizontal", 47, 3, 7, 2),
    Sketcher.Constraint("Diameter", 9, Q("0.1 in")),
    Sketcher.Constraint("DistanceX", -1, 1, 49, 3, 14.0092),
    Sketcher.Constraint("DistanceY", 49, 3, -1, 1, 14.0092),
    Sketcher.Constraint("DistanceY", 3, 2, -1, 1, 25.839902),
    Sketcher.Constraint("DistanceY", 3, 3, -1, 1, 27.094269),
    Sketcher.Constraint("DistanceX", 4, 3, -1, 1, 4.291309),
    Sketcher.Constraint("DistanceX", 6, 3, -1, 1, 3.09928),
    Sketcher.Constraint("DistanceY", 6, 3, -1, 1, 19.568082),
    Sketcher.Constraint("DistanceY", 11, 3, -1, 1, 24.442091),
    Sketcher.Constraint("DistanceX", -1, 1, 15, 3, 24.442091),
    Sketcher.Constraint("DistanceY", 17, 3, -1, 1, 4.29131),
    Sketcher.Constraint("DistanceX", -1, 1, 48, 3, 8.99446),
    Sketcher.Constraint("DistanceY", 48, 3, -1, 1, 17.652621),
    Sketcher.Constraint("DistanceX", -1, 1, 50, 3, 17.652621),
    Sketcher.Constraint("DistanceY", 50, 3, -1, 1, 8.99446),
    Sketcher.Constraint("DistanceX", -1, 1, 51, 3, 19.568081),
    Sketcher.Constraint("DistanceY", 51, 3, -1, 1, 3.09928),
    Sketcher.Constraint("DistanceY", 1, 2, -1, 1, 22.07681),
    Sketcher.Constraint("DistanceY", 2, 2, -1, 1, 24.585538),
    Sketcher.Constraint("DistanceX", 4, 2, -1, 1, 4.489982),
    Sketcher.Constraint("DistanceX", 6, 2, -1, 1, 3.297951),
    Sketcher.Constraint("DistanceX", 8, 2, -1, 1, 2.900608),
    Sketcher.Constraint("DistanceX", 0, 3, -1, 1, 3.695294),
    Sketcher.Constraint("DistanceY", 0, 3, -1, 1, 23.331175),
    Sketcher.Constraint("DistanceX", -1, 1, 11, 3, 12.453867),
    Sketcher.Constraint("DistanceX", -1, 1, 12, 3, 10.724164),
    Sketcher.Constraint("DistanceY", 12, 3, -1, 1, 21.047356),
    Sketcher.Constraint("DistanceX", -1, 1, 13, 3, 19.397353),
    Sketcher.Constraint("DistanceY", 13, 3, -1, 1, 19.397353),
    Sketcher.Constraint("DistanceX", -1, 1, 14, 3, 16.703276),
    Sketcher.Constraint("DistanceY", 14, 3, -1, 1, 16.703276),
    Sketcher.Constraint("DistanceY", 15, 3, -1, 1, 12.453867),
    Sketcher.Constraint("DistanceX", -1, 1, 16, 3, 21.047356),
    Sketcher.Constraint("DistanceY", 16, 3, -1, 1, 10.724164),
    Sketcher.Constraint("DistanceX", -1, 1, 17, 3, 27.094267),
    Sketcher.Constraint("DistanceX", -1, 1, 18, 3, 23.331174),
    Sketcher.Constraint("DistanceY", 18, 3, -1, 1, 3.695295),
])
sketch3.setExpression("Constraints[117]", "Params.sketch3_diameter")
pocket1 = body.newObject("PartDesign::Pocket", "Pocket")
pocket1.Profile = sketch3
pocket1.Type = "ThroughAll"

# Sketch on XY plane
sketch4 = body.newObject("Sketcher::SketchObject", "Sketch003")
sketch4.AttachmentSupport = (doc.getObject("XY_Plane"), [""])
sketch4.MapMode = "FlatFace"
sketch4.addGeometry([
    Part.Circle(V(0, -4.2, 0), V(0, 0, 1), 1.3),  # 0
    Part.Circle(V(0, -8.5, 0), V(0, 0, 1), 1.3),  # 1
    Part.Circle(V(3.7, -2.1, 0), V(0, 0, 1), 1.3),  # 2
    Part.Circle(V(7.3, -4.2, 0), V(0, 0, 1), 1.3),  # 3
    Part.Circle(V(3.7, 2.1, 0), V(0, 0, 1), 1.3),  # 4
    Part.Circle(V(7.3, 4.2, 0), V(0, 0, 1), 1.3),  # 5
    Part.Circle(V(0, 4.2, 0), V(0, 0, 1), 1.3),  # 6
    Part.Circle(V(0, 8.5, 0), V(0, 0, 1), 1.3),  # 7
    Part.Circle(V(-3.7, 2.1, 0), V(0, 0, 1), 1.3),  # 8
    Part.Circle(V(-7.3, 4.2, 0), V(0, 0, 1), 1.3),  # 9
    Part.Circle(V(-3.7, -2.1, 0), V(0, 0, 1), 1.3),  # 10
    Part.Circle(V(-7.3, -4.2, 0), V(0, 0, 1), 1.3),  # 11
], False)
sketch4.addConstraint([
    Sketcher.Constraint("Equal", 0, 1),
    Sketcher.Constraint("Equal", 1, 2),
    Sketcher.Constraint("Equal", 2, 3),
    Sketcher.Constraint("Equal", 3, 4),
    Sketcher.Constraint("Equal", 4, 5),
    Sketcher.Constraint("Equal", 5, 6),
    Sketcher.Constraint("Equal", 6, 7),
    Sketcher.Constraint("Equal", 7, 8),
    Sketcher.Constraint("Equal", 8, 9),
    Sketcher.Constraint("Equal", 9, 10),
    Sketcher.Constraint("Equal", 10, 11),
    Sketcher.Constraint("Symmetric", 0, 3, 6, 3, -1, 1),
    Sketcher.Constraint("Symmetric", 1, 3, 7, 3, -1, 1),
    Sketcher.Constraint("Symmetric", 2, 3, 8, 3, -1, 1),
    Sketcher.Constraint("Symmetric", 3, 3, 9, 3, -1, 1),
    Sketcher.Constraint("Symmetric", 4, 3, 10, 3, -1, 1),
    Sketcher.Constraint("Symmetric", 5, 3, 11, 3, -1, 1),
    Sketcher.Constraint("Symmetric", 4, 3, 8, 3, -2),
    Sketcher.Constraint("Symmetric", 5, 3, 9, 3, -2),
    Sketcher.Constraint("PointOnObject", 0, 3, -2),
    Sketcher.Constraint("PointOnObject", 1, 3, -2),
    Sketcher.Constraint("Horizontal", 0, 3, 3, 3),
    Sketcher.Constraint("Diameter", 0, Q("0.1 in")),
    Sketcher.Constraint("DistanceY", 1, 3, 5, 3, Q("0.5 in")),
    Sketcher.Constraint("DistanceY", 1, 3, 2, 3, Q("0.25 in")),
    Sketcher.Constraint("DistanceY", 0, 3, -1, 1, 4.233333),
    Sketcher.Constraint("DistanceX", -1, 1, 2, 3, 3.666174),
    Sketcher.Constraint("DistanceX", -1, 1, 3, 3, 7.332348),
])
sketch4.setExpression("Constraints[22]", "Params.sketch4_diameter")
pocket2 = body.newObject("PartDesign::Pocket", "Pocket001")
pocket2.Profile = sketch4
pocket2.Type = "ThroughAll"

# Sketch on XY plane
sketch5 = body.newObject("Sketcher::SketchObject", "Sketch004")
sketch5.AttachmentSupport = (doc.getObject("XY_Plane"), [""])
sketch5.MapMode = "FlatFace"
sketch5.addGeometry([
    Part.Circle(V(-6.3, 0, 0), V(0, 0, 1), 1.3),  # 0
    Part.Circle(V(-3.2, -5.5, 0), V(0, 0, 1), 1.3),  # 1
    Part.Circle(V(3.2, -5.5, 0), V(0, 0, 1), 1.3),  # 2
    Part.Circle(V(6.3, 0, 0), V(0, 0, 1), 1.3),  # 3
    Part.Circle(V(3.2, 5.5, 0), V(0, 0, 1), 1.3),  # 4
    Part.Circle(V(-3.2, 5.5, 0), V(0, 0, 1), 1.3),  # 5
    Part.Circle(V(-10.2, 0, 0), V(0, 0, 1), 1.3),  # 6
    Part.Circle(V(-5.1, -8.8, 0), V(0, 0, 1), 1.3),  # 7
    Part.Circle(V(5.1, -8.8, 0), V(0, 0, 1), 1.3),  # 8
    Part.Circle(V(10.2, 0, 0), V(0, 0, 1), 1.3),  # 9
    Part.Circle(V(5.1, 8.8, 0), V(0, 0, 1), 1.3),  # 10
    Part.Circle(V(-5.1, 8.8, 0), V(0, 0, 1), 1.3),  # 11
], False)
sketch5.addConstraint([
    Sketcher.Constraint("Equal", 0, 1),
    Sketcher.Constraint("Equal", 1, 2),
    Sketcher.Constraint("Equal", 2, 3),
    Sketcher.Constraint("Equal", 3, 4),
    Sketcher.Constraint("Equal", 4, 5),
    Sketcher.Constraint("Equal", 5, 6),
    Sketcher.Constraint("Equal", 6, 7),
    Sketcher.Constraint("Equal", 7, 8),
    Sketcher.Constraint("Equal", 8, 9),
    Sketcher.Constraint("Equal", 9, 10),
    Sketcher.Constraint("Equal", 10, 11),
    Sketcher.Constraint("Symmetric", 0, 3, 3, 3, -1, 1),
    Sketcher.Constraint("Symmetric", 1, 3, 4, 3, -1, 1),
    Sketcher.Constraint("Symmetric", 2, 3, 5, 3, -1, 1),
    Sketcher.Constraint("Symmetric", 6, 3, 9, 3, -1, 1),
    Sketcher.Constraint("Symmetric", 7, 3, 10, 3, -1, 1),
    Sketcher.Constraint("Symmetric", 8, 3, 11, 3, -1, 1),
    Sketcher.Constraint("Symmetric", 1, 3, 2, 3, -2),
    Sketcher.Constraint("Symmetric", 7, 3, 8, 3, -2),
    Sketcher.Constraint("PointOnObject", 0, 3, -1),
    Sketcher.Constraint("PointOnObject", 6, 3, -1),
    Sketcher.Constraint("Diameter", 0, Q("0.1 in")),
    Sketcher.Constraint("DistanceX", 6, 3, -1, 1, Q("0.4 in")),
    Sketcher.Constraint("DistanceX", 7, 3, -1, 1, Q("0.2 in")),
    Sketcher.Constraint("DistanceX", 0, 3, 3, 3, Q("0.5 in")),
    Sketcher.Constraint("DistanceX", 1, 3, 2, 3, Q("0.25 in")),
    Sketcher.Constraint("DistanceY", 1, 3, -1, 1, 5.499261),
    Sketcher.Constraint("DistanceY", 7, 3, -1, 1, 8.798818),
])
sketch5.setExpression("Constraints[21]", "Params.sketch5_diameter")
pocket3 = body.newObject("PartDesign::Pocket", "Pocket002")
pocket3.Profile = sketch5
pocket3.Type = "ThroughAll"

doc.recompute()
